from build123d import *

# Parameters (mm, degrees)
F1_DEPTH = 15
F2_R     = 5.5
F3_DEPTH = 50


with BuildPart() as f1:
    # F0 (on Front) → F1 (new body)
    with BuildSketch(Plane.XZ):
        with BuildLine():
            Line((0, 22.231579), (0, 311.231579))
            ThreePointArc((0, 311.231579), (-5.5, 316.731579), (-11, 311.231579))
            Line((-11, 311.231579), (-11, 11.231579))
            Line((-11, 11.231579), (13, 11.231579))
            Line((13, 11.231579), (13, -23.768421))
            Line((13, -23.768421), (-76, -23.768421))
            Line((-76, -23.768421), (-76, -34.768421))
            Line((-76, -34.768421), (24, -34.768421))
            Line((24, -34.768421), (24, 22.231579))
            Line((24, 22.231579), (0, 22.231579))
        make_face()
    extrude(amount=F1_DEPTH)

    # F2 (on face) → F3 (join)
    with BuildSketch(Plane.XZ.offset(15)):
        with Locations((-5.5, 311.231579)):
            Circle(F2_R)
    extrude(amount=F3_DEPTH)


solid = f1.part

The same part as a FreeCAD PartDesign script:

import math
import FreeCAD as App
import Part
import Sketcher

V = App.Vector
Q = App.Units.Quantity

doc = App.newDocument("Part")
params = doc.addObject("Spreadsheet::Sheet", "Params")
for row, (alias, value) in enumerate([
    ("sketch1_radius", "5.5 mm"),
    ("sketch1_width", "24 mm"),
    ("sketch1_width2", "89 mm"),
    ("sketch1_height", "289 mm"),
    ("sketch1_height2", "300 mm"),
    ("pad1_length", "15 mm"),
    ("sketch2_diameter", "11 mm"),
    ("pad2_length", "50 mm"),
], start=1):
    params.set(f"A{row}", alias)
    params.set(f"B{row}", "=" + value)
    params.setAlias(f"B{row}", alias)

body = doc.addObject("PartDesign::Body", "Body")

# Sketch on XZ plane
sketch1 = body.newObject("Sketcher::SketchObject", "Sketch")
sketch1.AttachmentSupport = (doc.getObject("XZ_Plane"), [""])
sketch1.MapMode = "FlatFace"
sketch1.addGeometry([
    Part.LineSegment(V(0, 22.231579, 0), V(0, 311.231579, 0)),  # 0
    Part.ArcOfCircle(Part.Circle(V(-5.5, 311.231579, 0), V(0, 0, 1), 5.5), math.radians(0), math.radians(180)),  # 1
    Part.LineSegment(V(-11, 311.231579, 0), V(-11, 11.231579, 0)),  # 2
    Part.LineSegment(V(-11, 11.231579, 0), V(13, 11.231579, 0)),  # 3
    Part.LineSegment(V(13, 11.231579, 0), V(13, -23.768421, 0)),  # 4
    Part.LineSegment(V(13, -23.768421, 0), V(-76, -23.768421, 0)),  # 5
    Part.LineSegment(V(-76, -23.768421, 0), V(-76, -34.768421, 0)),  # 6
    Part.LineSegment(V(-76, -34.768421, 0), V(24, -34.768421, 0)),  # 7
    Part.LineSegment(V(24, -34.768421, 0), V(24, 22.231579, 0)),  # 8
    Part.LineSegment(V(24, 22.231579, 0), V(0, 22.231579, 0)),  # 9
], False)
sketch1.addConstraint([
    Sketcher.Constraint("Tangent", 0, 2, 1, 1),
    Sketcher.Constraint("Tangent", 1, 2, 2, 1),
    Sketcher.Constraint("Coincident", 2, 2, 3, 1),
    Sketcher.Constraint("Coincident", 3, 2, 4, 1),
    Sketcher.Constraint("Coincident", 4, 2, 5, 1),
    Sketcher.Constraint("Coincident", 5, 2, 6, 1),
    Sketcher.Constraint("Coincident", 6, 2, 7, 1),
    Sketcher.Constraint("Coincident", 7, 2, 8, 1),
    Sketcher.Constraint("Coincident", 8, 2, 9, 1),
    Sketcher.Constraint("Coincident", 9, 2, 0, 1),
    Sketcher.Constraint("Vertical", 0),
    Sketcher.Constraint("Vertical", 2),
    Sketcher.Constraint("Horizontal", 3),
    Sketcher.Constraint("Vertical", 4),
    Sketcher.Constraint("Horizontal", 5),
    Sketcher.Constraint("Vertical", 6),
    Sketcher.Constraint("Horizontal", 7),
    Sketcher.Constraint("Vertical", 8),
    Sketcher.Constraint("Horizontal", 9),
    Sketcher.Constraint("PointOnObject", 0, 2, -2),
    Sketcher.Constraint("Equal", 3, 9),
    Sketcher.Constraint("Radius", 1, Q("5.5 mm")),
    Sketcher.Constraint("DistanceX", 3, 1, 3, 2, Q("24 mm")),
    Sketcher.Constraint("DistanceX", 5, 2, 5, 1, Q("89 mm")),
    Sketcher.Constraint("DistanceY", 0, 1, 0, 2, Q("289 mm")),
    Sketcher.Constraint("DistanceY", 2, 2, 2, 1, Q("300 mm")),
    Sketcher.Constraint("DistanceY", 4, 2, 4, 1, Q("35 mm")),
    Sketcher.Constraint("DistanceY", 6, 2, 6, 1, Q("11 mm")),
    Sketcher.Constraint("DistanceY", -1, 1, 1, 3, Q("311.231579 mm")),
])
sketch1.setExpression("Constraints[21]", "Params.sketch1_radius")
sketch1.setExpression("Constraints[22]", "Params.sketch1_width")
sketch1.setExpression("Constraints[23]", "Params.sketch1_width2")
sketch1.setExpression("Constraints[24]", "Params.sketch1_height")
sketch1.setExpression("Constraints[25]", "Params.sketch1_height2")
pad1 = body.newObject("PartDesign::Pad", "Pad")
pad1.Profile = sketch1
pad1.setExpression("Length", "Params.pad1_length")

# Sketch on XZ plane
sketch2 = body.newObject("Sketcher::SketchObject", "Sketch001")
sketch2.AttachmentSupport = (doc.getObject("XZ_Plane"), [""])
sketch2.MapMode = "FlatFace"
sketch2.AttachmentOffset = App.Placement(V(0, 0, 15), App.Rotation())
sketch2.addGeometry(Part.Circle(V(-5.5, 311.231579, 0), V(0, 0, 1), 5.5), False)
sketch2.addConstraint([
    Sketcher.Constraint("Diameter", 0, Q("11 mm")),
    Sketcher.Constraint("DistanceX", 0, 3, -1, 1, Q("5.5 mm")),
    Sketcher.Constraint("DistanceY", -1, 1, 0, 3, Q("311.231579 mm")),
])
sketch2.setExpression("Constraints[0]", "Params.sketch2_diameter")
pad2 = body.newObject("PartDesign::Pad", "Pad001")
pad2.Profile = sketch2
pad2.setExpression("Length", "Params.pad2_length")

doc.recompute()
